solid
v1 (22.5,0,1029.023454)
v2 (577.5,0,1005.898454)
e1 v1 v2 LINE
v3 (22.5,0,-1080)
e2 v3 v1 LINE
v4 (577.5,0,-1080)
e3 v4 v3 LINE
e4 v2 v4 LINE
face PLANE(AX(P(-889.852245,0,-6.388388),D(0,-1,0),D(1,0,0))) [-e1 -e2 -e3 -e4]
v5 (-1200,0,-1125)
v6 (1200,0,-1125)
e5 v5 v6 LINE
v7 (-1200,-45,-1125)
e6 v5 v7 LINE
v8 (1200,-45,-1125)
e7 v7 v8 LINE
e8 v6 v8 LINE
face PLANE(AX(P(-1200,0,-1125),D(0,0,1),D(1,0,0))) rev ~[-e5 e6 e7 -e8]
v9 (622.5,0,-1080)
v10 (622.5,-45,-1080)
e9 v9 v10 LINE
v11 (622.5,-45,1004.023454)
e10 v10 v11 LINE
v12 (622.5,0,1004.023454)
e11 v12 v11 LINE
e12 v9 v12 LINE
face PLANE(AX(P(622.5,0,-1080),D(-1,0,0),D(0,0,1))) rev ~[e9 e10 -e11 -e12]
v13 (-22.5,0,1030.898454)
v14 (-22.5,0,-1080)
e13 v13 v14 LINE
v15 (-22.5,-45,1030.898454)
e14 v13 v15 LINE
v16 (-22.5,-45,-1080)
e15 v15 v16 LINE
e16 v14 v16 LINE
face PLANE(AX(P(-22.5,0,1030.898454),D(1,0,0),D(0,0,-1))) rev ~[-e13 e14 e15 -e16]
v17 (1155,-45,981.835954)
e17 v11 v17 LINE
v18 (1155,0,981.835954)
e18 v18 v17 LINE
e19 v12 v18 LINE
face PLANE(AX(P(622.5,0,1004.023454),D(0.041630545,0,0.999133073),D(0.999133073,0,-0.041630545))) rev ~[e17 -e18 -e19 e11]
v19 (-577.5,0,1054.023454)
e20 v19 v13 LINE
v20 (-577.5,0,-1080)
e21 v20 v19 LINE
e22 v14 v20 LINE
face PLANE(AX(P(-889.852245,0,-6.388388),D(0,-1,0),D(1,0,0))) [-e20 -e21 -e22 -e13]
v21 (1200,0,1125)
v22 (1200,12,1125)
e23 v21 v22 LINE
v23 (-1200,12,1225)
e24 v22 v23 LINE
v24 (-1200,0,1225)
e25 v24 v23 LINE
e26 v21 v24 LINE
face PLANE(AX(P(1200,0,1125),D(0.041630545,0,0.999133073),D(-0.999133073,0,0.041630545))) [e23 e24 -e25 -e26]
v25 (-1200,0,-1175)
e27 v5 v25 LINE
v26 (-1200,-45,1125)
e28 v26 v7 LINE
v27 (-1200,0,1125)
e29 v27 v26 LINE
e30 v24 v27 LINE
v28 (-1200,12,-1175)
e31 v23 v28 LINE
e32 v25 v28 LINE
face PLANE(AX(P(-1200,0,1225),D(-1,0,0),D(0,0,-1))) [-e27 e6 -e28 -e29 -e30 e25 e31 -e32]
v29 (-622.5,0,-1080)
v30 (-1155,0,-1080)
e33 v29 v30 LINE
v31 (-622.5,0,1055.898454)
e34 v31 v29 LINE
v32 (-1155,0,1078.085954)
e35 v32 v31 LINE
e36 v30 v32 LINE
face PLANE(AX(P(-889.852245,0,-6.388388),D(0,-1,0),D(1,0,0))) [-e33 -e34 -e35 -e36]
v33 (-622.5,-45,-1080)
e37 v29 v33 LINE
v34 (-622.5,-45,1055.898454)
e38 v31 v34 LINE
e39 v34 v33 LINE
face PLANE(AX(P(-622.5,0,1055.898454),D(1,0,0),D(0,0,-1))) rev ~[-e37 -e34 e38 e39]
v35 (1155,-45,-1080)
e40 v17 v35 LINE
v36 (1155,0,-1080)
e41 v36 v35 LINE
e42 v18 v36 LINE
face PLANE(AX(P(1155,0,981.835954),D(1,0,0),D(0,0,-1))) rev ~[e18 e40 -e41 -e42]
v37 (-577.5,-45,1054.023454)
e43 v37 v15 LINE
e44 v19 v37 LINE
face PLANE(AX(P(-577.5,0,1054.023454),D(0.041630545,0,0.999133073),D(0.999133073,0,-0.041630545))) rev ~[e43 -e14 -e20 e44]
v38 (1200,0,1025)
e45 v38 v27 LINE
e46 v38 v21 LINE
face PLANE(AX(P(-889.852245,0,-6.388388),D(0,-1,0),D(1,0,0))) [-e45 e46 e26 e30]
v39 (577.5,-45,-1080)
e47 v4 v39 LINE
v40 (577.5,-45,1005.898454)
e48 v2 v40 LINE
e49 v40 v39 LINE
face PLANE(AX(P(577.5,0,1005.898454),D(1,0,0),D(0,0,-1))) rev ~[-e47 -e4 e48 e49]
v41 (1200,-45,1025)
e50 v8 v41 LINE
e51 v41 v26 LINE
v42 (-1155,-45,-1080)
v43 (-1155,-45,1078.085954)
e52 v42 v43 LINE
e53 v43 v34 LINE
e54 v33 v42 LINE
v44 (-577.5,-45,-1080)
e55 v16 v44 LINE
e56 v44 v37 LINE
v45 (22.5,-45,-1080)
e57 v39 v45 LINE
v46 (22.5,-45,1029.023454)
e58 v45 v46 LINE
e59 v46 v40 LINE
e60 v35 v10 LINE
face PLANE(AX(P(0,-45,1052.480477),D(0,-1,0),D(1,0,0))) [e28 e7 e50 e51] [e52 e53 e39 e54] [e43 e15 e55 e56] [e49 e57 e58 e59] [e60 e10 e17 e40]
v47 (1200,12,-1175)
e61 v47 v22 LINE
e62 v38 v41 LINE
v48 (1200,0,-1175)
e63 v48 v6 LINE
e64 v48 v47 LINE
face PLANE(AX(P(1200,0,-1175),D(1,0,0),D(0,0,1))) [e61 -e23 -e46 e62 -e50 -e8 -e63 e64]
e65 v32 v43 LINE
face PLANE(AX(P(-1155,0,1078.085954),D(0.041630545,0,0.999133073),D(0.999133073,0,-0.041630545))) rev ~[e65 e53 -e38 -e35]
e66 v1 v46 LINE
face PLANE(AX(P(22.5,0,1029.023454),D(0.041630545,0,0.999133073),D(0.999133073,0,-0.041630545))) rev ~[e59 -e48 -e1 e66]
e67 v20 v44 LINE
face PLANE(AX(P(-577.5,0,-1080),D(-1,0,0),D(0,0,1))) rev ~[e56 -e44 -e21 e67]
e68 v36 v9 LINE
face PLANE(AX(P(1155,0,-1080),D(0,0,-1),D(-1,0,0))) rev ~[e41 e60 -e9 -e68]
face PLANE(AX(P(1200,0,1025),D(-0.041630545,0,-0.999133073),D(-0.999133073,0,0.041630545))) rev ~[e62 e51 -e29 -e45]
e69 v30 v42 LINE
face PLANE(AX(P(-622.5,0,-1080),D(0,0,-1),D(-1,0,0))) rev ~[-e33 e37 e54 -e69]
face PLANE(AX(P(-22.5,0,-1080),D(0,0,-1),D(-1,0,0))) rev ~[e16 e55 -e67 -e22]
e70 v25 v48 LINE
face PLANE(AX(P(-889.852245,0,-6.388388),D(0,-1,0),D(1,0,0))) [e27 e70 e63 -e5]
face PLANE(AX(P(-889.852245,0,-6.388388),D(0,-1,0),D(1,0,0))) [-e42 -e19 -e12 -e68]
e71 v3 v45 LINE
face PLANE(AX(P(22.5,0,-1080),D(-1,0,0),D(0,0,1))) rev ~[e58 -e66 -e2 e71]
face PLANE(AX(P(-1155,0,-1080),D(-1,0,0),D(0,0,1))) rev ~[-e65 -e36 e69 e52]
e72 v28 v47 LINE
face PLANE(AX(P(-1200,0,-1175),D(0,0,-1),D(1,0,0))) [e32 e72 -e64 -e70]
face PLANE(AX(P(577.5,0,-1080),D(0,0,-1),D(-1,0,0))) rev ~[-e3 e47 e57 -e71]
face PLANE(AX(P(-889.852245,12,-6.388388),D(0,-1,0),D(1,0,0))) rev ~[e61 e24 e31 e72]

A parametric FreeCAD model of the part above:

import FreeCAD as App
import Part
import Sketcher
from FreeCAD import Vector
Q = App.Units.Quantity


def add_polygon(sketch, points):
    """Adds a closed chain of lines whose ends are joined by coincident constraints."""
    first, n = sketch.GeometryCount, len(points)
    for a, b in zip(points, points[1:] + points[:1]):
        sketch.addGeometry(Part.LineSegment(App.Vector(*a, 0), App.Vector(*b, 0)), False)
    for i in range(n):
        sketch.addConstraint(Sketcher.Constraint("Coincident", first + i, 2, first + (i + 1) % n, 1))

doc = App.newDocument("Part")
body = doc.addObject("PartDesign::Body", "Body")

sketch1 = body.newObject("Sketcher::SketchObject", "Sketch")
sketch1.AttachmentSupport = (doc.getObject("XZ_Plane"), [""])
sketch1.MapMode = "FlatFace"
add_polygon(sketch1, [(1200, 1025), (-1200, 1125), (-1200, -1125), (1200, -1125)])
add_polygon(sketch1, [(-1155, -1080), (-1155, 1078.085954), (-622.5, 1055.898454), (-622.5, -1080)])
add_polygon(sketch1, [(-577.5, -1080), (-577.5, 1054.023454), (-22.5, 1030.898454), (-22.5, -1080)])
add_polygon(sketch1, [(22.5, -1080), (22.5, 1029.023454), (577.5, 1005.898454), (577.5, -1080)])
add_polygon(sketch1, [(622.5, -1080), (622.5, 1004.023454), (1155, 981.835954), (1155, -1080)])
sketch1.addConstraint([
    Sketcher.Constraint("Vertical", 1),
    Sketcher.Constraint("Horizontal", 2),
    Sketcher.Constraint("Vertical", 3),
    Sketcher.Constraint("Vertical", 4),
    Sketcher.Constraint("Vertical", 6),
    Sketcher.Constraint("Horizontal", 7),
    Sketcher.Constraint("Vertical", 8),
    Sketcher.Constraint("Vertical", 10),
    Sketcher.Constraint("Horizontal", 11),
    Sketcher.Constraint("Vertical", 12),
    Sketcher.Constraint("Vertical", 14),
    Sketcher.Constraint("Horizontal", 15),
    Sketcher.Constraint("Vertical", 16),
    Sketcher.Constraint("Vertical", 18),
    Sketcher.Constraint("Horizontal", 19),
    Sketcher.Constraint("Symmetric", 0, 2, 2, 2, -1, 1),
    Sketcher.Constraint("Symmetric", 11, 2, 14, 2, -2),
    Sketcher.Constraint("Symmetric", 7, 2, 18, 2, -2),
    Sketcher.Constraint("Parallel", 0, 5),
    Sketcher.Constraint("Parallel", 5, 9),
    Sketcher.Constraint("Parallel", 9, 13),
    Sketcher.Constraint("Parallel", 13, 17),
    Sketcher.Constraint("Horizontal", 7, 2, 10, 2),
    Sketcher.Constraint("Equal", 11, 15),
    Sketcher.Constraint("Equal", 7, 19),
    Sketcher.Constraint("DistanceX", 2, 1, 2, 2, Q("2400 mm")),
    Sketcher.Constraint("DistanceX", 11, 2, 11, 1, Q("555 mm")),
    Sketcher.Constraint("DistanceY", 1, 2, 1, 1, Q("2250 mm")),
    Sketcher.Constraint("DistanceY", 3, 1, 3, 2, Q("2150 mm")),
    Sketcher.Constraint("DistanceX", 7, 2, 7, 1, Q("532.5 mm")),
    Sketcher.Constraint("DistanceX", 4, 2, -1, 1, Q("1155 mm")),
    Sketcher.Constraint("DistanceY", 6, 2, -1, 1, Q("1080 mm")),
    Sketcher.Constraint("DistanceX", 5, 2, 8, 2, Q("45 mm")),
    Sketcher.Constraint("DistanceY", 9, 2, 5, 2, Q("25 mm")),
    Sketcher.Constraint("DistanceY", 12, 2, 8, 2, Q("25 mm")),
    Sketcher.Constraint("DistanceY", 16, 2, 12, 2, Q("25 mm")),
    Sketcher.Constraint("DistanceY", 4, 1, 4, 2, Q("2158.085954 mm")),
])
pad1 = body.newObject("PartDesign::Pad", "Pad")
pad1.Profile = sketch1
pad1.Length = 45

sketch2 = body.newObject("Sketcher::SketchObject", "Sketch001")
sketch2.AttachmentSupport = (doc.getObject("XZ_Plane"), [""])
sketch2.MapMode = "FlatFace"
add_polygon(sketch2, [(1200, 1125), (-1200, 1225), (-1200, -1175), (1200, -1175)])
sketch2.addConstraint([
    Sketcher.Constraint("Vertical", 1),
    Sketcher.Constraint("Horizontal", 2),
    Sketcher.Constraint("Vertical", 3),
    Sketcher.Constraint("Equal", 2, 1),
    Sketcher.Constraint("DistanceX", 2, 1, 2, 2, Q("2400 mm")),
    Sketcher.Constraint("DistanceY", 3, 1, 3, 2, Q("2300 mm")),
    Sketcher.Constraint("DistanceX", 0, 2, -1, 1, Q("1200 mm")),
    Sketcher.Constraint("DistanceY", -1, 1, 0, 2, Q("1225 mm")),
])
pad2 = body.newObject("PartDesign::Pad", "Pad001")
pad2.Profile = sketch2
pad2.Length = 12
pad2.Reversed = True

doc.recompute()
